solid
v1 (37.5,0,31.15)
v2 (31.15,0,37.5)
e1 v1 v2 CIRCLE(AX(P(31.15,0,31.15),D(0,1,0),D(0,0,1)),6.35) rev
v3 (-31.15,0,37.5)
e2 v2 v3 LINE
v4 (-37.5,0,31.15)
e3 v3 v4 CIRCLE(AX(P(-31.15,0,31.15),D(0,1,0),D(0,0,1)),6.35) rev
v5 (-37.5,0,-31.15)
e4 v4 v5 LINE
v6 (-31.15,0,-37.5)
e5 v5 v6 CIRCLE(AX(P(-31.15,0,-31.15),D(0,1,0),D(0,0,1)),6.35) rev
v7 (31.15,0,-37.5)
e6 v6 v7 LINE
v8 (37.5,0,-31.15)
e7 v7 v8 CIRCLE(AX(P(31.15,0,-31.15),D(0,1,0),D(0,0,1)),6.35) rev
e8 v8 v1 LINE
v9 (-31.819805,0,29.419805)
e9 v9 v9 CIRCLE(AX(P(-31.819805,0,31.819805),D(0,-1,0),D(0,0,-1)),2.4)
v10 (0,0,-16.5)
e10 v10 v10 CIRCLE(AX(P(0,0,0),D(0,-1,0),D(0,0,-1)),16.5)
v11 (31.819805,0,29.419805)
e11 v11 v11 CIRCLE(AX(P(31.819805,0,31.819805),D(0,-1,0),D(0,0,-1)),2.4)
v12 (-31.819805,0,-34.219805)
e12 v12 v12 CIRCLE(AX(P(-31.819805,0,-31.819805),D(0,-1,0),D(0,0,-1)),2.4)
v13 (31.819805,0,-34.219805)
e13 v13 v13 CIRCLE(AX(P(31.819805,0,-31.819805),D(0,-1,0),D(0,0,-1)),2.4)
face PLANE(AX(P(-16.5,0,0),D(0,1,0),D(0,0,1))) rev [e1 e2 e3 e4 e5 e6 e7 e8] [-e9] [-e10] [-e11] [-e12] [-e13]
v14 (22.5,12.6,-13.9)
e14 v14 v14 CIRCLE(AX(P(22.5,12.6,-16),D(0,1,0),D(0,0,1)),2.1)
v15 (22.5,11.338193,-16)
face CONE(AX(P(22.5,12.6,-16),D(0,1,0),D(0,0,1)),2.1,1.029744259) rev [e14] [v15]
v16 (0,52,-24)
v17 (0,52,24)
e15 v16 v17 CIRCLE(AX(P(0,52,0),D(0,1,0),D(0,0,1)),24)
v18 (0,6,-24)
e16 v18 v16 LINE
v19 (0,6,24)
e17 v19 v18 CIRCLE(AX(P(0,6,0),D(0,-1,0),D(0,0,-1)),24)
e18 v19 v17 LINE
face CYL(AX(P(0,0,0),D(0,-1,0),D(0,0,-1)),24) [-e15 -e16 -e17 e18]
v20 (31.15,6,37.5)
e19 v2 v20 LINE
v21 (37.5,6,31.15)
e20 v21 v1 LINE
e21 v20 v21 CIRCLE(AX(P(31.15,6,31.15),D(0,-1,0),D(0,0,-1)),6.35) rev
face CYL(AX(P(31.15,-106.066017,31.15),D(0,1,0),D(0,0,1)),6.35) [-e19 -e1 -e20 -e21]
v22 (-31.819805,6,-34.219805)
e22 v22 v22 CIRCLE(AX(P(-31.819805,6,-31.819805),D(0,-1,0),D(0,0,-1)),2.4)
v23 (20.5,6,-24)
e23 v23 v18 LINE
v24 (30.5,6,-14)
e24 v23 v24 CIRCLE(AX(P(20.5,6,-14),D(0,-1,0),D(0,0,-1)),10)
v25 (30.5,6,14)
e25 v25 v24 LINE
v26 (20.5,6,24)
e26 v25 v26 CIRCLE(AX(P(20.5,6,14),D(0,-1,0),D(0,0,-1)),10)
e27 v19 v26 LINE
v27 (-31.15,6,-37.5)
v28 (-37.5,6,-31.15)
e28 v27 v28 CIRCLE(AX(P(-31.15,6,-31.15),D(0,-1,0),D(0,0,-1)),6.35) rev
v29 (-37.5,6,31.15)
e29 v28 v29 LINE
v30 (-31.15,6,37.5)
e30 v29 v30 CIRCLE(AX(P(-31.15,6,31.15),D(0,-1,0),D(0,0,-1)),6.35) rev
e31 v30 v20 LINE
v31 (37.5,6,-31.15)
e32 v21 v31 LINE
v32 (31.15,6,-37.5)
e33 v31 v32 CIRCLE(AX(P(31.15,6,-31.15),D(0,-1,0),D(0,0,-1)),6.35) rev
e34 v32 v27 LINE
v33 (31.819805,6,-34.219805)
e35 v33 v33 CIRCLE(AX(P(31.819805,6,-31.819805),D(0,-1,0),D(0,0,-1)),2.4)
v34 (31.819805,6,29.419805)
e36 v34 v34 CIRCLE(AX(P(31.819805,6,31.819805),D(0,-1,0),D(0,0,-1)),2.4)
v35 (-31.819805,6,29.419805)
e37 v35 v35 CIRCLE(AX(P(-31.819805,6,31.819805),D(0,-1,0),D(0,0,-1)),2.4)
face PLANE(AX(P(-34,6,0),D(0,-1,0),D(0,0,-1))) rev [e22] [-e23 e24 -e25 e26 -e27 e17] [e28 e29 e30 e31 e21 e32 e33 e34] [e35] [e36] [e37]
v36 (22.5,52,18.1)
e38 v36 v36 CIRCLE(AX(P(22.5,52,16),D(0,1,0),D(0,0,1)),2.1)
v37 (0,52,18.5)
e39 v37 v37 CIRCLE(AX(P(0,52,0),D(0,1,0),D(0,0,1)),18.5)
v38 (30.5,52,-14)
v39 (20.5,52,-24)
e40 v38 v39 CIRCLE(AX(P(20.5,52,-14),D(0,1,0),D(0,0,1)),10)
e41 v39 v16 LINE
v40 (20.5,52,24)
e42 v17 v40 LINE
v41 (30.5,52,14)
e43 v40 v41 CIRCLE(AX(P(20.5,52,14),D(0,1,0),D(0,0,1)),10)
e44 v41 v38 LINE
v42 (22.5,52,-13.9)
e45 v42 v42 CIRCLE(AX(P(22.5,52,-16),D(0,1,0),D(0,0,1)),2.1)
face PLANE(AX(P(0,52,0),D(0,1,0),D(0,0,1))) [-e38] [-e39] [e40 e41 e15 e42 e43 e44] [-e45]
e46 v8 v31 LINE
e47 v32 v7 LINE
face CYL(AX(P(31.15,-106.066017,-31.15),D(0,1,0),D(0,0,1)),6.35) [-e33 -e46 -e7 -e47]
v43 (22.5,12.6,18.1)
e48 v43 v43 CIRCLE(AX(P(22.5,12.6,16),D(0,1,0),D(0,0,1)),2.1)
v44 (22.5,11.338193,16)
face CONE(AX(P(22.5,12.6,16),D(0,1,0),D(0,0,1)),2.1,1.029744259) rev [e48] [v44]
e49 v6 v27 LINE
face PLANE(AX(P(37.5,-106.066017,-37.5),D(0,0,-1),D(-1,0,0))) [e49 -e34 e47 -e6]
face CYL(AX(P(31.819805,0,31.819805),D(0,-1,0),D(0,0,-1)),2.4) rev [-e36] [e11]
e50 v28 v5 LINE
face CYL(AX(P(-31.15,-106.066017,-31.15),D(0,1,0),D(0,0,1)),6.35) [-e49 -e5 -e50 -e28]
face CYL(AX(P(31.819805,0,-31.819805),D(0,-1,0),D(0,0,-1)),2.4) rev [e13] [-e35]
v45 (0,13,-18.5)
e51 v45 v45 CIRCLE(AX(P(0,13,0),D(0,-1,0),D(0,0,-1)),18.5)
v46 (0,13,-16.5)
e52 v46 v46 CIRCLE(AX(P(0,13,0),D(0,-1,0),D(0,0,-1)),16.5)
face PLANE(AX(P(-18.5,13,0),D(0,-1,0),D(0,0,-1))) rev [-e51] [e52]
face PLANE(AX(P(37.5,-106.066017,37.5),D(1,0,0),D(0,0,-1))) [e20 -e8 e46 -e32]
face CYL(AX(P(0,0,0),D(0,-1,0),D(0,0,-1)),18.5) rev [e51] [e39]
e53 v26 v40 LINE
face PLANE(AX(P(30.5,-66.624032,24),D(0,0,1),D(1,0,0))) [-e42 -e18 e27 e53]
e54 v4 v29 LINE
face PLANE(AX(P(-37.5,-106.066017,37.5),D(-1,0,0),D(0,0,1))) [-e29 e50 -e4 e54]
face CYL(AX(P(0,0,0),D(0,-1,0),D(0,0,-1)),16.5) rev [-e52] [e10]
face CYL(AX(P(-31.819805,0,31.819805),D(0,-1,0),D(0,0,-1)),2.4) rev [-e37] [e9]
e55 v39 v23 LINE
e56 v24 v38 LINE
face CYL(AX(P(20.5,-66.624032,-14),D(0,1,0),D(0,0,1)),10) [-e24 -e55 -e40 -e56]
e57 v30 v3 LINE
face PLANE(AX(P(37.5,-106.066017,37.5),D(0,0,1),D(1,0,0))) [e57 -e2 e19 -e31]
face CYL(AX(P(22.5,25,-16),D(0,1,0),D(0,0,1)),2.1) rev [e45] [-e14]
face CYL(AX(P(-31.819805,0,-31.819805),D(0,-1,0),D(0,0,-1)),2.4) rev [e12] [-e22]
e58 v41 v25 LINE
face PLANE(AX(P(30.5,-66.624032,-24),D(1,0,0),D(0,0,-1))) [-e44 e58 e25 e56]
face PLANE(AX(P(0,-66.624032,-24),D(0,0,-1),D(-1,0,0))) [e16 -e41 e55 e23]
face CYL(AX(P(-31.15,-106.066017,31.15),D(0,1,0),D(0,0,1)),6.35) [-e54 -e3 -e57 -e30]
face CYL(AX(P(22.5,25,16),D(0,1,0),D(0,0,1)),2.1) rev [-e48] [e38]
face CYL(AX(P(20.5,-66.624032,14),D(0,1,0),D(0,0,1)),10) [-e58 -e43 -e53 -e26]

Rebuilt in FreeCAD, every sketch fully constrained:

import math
import FreeCAD as App
import Part
import Sketcher

V = App.Vector


def edges_at(feature, points):
    """Names of the edges that pass closest to the given points."""
    edges = feature.Shape.Edges
    near = lambda p: min(range(len(edges)), key=lambda i: edges[i].distToShape(Part.Vertex(*p))[0])
    return sorted({f"Edge{near(p) + 1}" for p in points})


def add_polygon(sketch, points):
    """Adds a closed chain of lines whose ends are joined by coincident constraints."""
    first, n = sketch.GeometryCount, len(points)
    for a, b in zip(points, points[1:] + points[:1]):
        sketch.addGeometry(Part.LineSegment(App.Vector(*a, 0), App.Vector(*b, 0)), False)
    for i in range(n):
        sketch.addConstraint(Sketcher.Constraint("Coincident", first + i, 2, first + (i + 1) % n, 1))

doc = App.newDocument("Part")
params = doc.addObject("Spreadsheet::Sheet", "Params")
for row, (alias, value) in enumerate([
    ("sketch1_width", "2 mm"),
    ("sketch1_width2", "10 mm"),
    ("sketch1_height", "13 mm"),
    ("sketch1_height2", "12 mm"),
    ("sketch1_height3", "19 mm"),
    ("revolution_angle", "360 deg"),
    ("sketch2_diameter", "42 mm"),
    ("sketch2_width", "75 mm"),
    ("pad1_length", "6 mm"),
    ("sketch3_diameter", "4.8 mm"),
    ("hole_diameter", "4.8 mm"),
    ("hole_depth", "25 mm"),
    ("fillet_radius", "6.35 mm"),
    ("sketch4_radius", "24 mm"),
    ("sketch4_width", "30.5 mm"),
    ("pad2_length", "19 mm"),
    ("fillet2_radius", "10 mm"),
    ("sketch5_diameter", "4.2 mm"),
    ("hole2_diameter", "4.2 mm"),
    ("hole2_depth", "12.4 mm"),
    ("sketch6_diameter", "37 mm"),
    ("sketch6_radius", "10 mm"),
    ("sketch6_radius2", "24 mm"),
    ("sketch6_diameter2", "4.2 mm"),
    ("sketch6_width", "20.5 mm"),
    ("pad3_length", "27 mm"),
], start=1):
    params.set(f"A{row}", alias)
    params.set(f"B{row}", "=" + value)
    params.setAlias(f"B{row}", alias)

body = doc.addObject("PartDesign::Body", "Body")

# Sketch on XY plane
sketch1 = body.newObject("Sketcher::SketchObject", "Sketch")
sketch1.AttachmentSupport = (doc.getObject("XY_Plane"), [""])
sketch1.MapMode = "FlatFace"
add_polygon(sketch1, [(-34, 0), (-16.5, 0), (-16.5, 13), (-18.5, 13), (-18.5, 25), (-24, 25), (-24, 6), (-34, 6)])  # lines 0-7
sketch1.addConstraint([
    Sketcher.Constraint("Horizontal", 0),
    Sketcher.Constraint("Vertical", 1),
    Sketcher.Constraint("Horizontal", 2),
    Sketcher.Constraint("Vertical", 3),
    Sketcher.Constraint("Horizontal", 4),
    Sketcher.Constraint("Vertical", 5),
    Sketcher.Constraint("Horizontal", 6),
    Sketcher.Constraint("Vertical", 7),
    Sketcher.Constraint("PointOnObject", 0, 2, -1),
    Sketcher.Constraint("DistanceX", 2, 2, 2, 1, 2.0),
    Sketcher.Constraint("DistanceX", 6, 2, 6, 1, 10.0),
    Sketcher.Constraint("DistanceY", 1, 1, 1, 2, 13.0),
    Sketcher.Constraint("DistanceY", 3, 1, 3, 2, 12.0),
    Sketcher.Constraint("DistanceY", 5, 2, 5, 1, 19.0),
    Sketcher.Constraint("DistanceX", 0, 1, 0, 2, 17.5),
    Sketcher.Constraint("DistanceX", 4, 2, -1, 1, 24.0),
])
sketch1.setExpression("Constraints[17]", "Params.sketch1_width")
sketch1.setExpression("Constraints[18]", "Params.sketch1_width2")
sketch1.setExpression("Constraints[19]", "Params.sketch1_height")
sketch1.setExpression("Constraints[20]", "Params.sketch1_height2")
sketch1.setExpression("Constraints[21]", "Params.sketch1_height3")
revolution = body.newObject("PartDesign::Revolution", "Revolution")
revolution.Profile = sketch1
revolution.ReferenceAxis = (sketch1, ["V_Axis"])
revolution.setExpression("Angle", "Params.revolution_angle")

# Sketch on XZ plane
sketch2 = body.newObject("Sketcher::SketchObject", "Sketch001")
sketch2.AttachmentSupport = (doc.getObject("XZ_Plane"), [""])
sketch2.MapMode = "FlatFace"
sketch2.AttachmentOffset = App.Placement(V(0, 0, -6), App.Rotation())
add_polygon(sketch2, [(-38, -38), (-38, 38), (38, 38), (38, -38)])  # lines 0-3
sketch2.addGeometry(Part.Circle(V(0, 0, 0), V(0, 0, 1), 21), False)  # 4
sketch2.addConstraint([
    Sketcher.Constraint("Vertical", 0),
    Sketcher.Constraint("Horizontal", 1),
    Sketcher.Constraint("Vertical", 2),
    Sketcher.Constraint("Horizontal", 3),
    Sketcher.Constraint("Coincident", 4, 3, -1, 1),
    Sketcher.Constraint("Symmetric", 0, 2, 2, 2, -1, 1),
    Sketcher.Constraint("Equal", 3, 0),
    Sketcher.Constraint("Diameter", 4, 42.0),
    Sketcher.Constraint("DistanceX", 1, 1, 1, 2, 75.0),
])
sketch2.setExpression("Constraints[11]", "Params.sketch2_diameter")
sketch2.setExpression("Constraints[12]", "Params.sketch2_width")
pad1 = body.newObject("PartDesign::Pad", "Pad")
pad1.Profile = sketch2
pad1.setExpression("Length", "Params.pad1_length")

# Sketch on XZ plane
sketch3 = body.newObject("Sketcher::SketchObject", "Sketch002")
sketch3.AttachmentSupport = (doc.getObject("XZ_Plane"), [""])
sketch3.MapMode = "FlatFace"
sketch3.addGeometry([
    Part.Circle(V(0, 0, 0), V(0, 0, 1), 2.4),  # 0
    Part.Circle(V(31.8, -31.8, 0), V(0, 0, 1), 2.4),  # 1
    Part.Circle(V(-31.8, -31.8, 0), V(0, 0, 1), 2.4),  # 2
    Part.Circle(V(-31.8, 31.8, 0), V(0, 0, 1), 2.4),  # 3
    Part.Circle(V(31.8, 31.8, 0), V(0, 0, 1), 2.4),  # 4
], False)
sketch3.addConstraint([
    Sketcher.Constraint("Coincident", 0, 3, -1, 1),
    Sketcher.Constraint("Equal", 0, 1),
    Sketcher.Constraint("Equal", 1, 2),
    Sketcher.Constraint("Equal", 2, 3),
    Sketcher.Constraint("Equal", 3, 4),
    Sketcher.Constraint("Symmetric", 1, 3, 3, 3, -1, 1),
    Sketcher.Constraint("Symmetric", 2, 3, 4, 3, -1, 1),
    Sketcher.Constraint("Symmetric", 1, 3, 2, 3, -2),
    Sketcher.Constraint("Diameter", 0, 4.8),
    Sketcher.Constraint("DistanceX", 2, 3, 1, 3, 63.63961),
    Sketcher.Constraint("DistanceY", 2, 3, 3, 3, 63.63961),
])
sketch3.setExpression("Constraints[8]", "Params.sketch3_diameter")
doc.recompute()
hole = body.newObject("PartDesign::Hole", "Hole")
hole.Profile = sketch3
hole.ThreadType = "None"
hole.setExpression("Diameter", "Params.hole_diameter")
hole.DepthType = "Dimension"
hole.setExpression("Depth", "Params.hole_depth")
hole.DrillPoint = "Flat"
doc.recompute()

fillet = body.newObject("PartDesign::Fillet", "Fillet")
fillet.Base = (hole, edges_at(hole, [
    (37.5, 3, 37.5),
    (37.5, 3, -37.5),
    (-37.5, 3, -37.5),
    (-37.5, 3, 37.5),
]))
fillet.setExpression("Radius", "Params.fillet_radius")

# Sketch on XZ plane
sketch4 = body.newObject("Sketcher::SketchObject", "Sketch003")
sketch4.AttachmentSupport = (doc.getObject("XZ_Plane"), [""])
sketch4.MapMode = "FlatFace"
sketch4.AttachmentOffset = App.Placement(V(0, 0, -25), App.Rotation())
sketch4.addGeometry([
    Part.LineSegment(V(30, -24, 0), V(0, -24, 0)),  # 0
    Part.ArcOfCircle(Part.Circle(V(0, 0, 0), V(0, 0, 1), 24), math.radians(90), math.radians(270)),  # 1
    Part.LineSegment(V(0, 24, 0), V(30, 24, 0)),  # 2
    Part.LineSegment(V(30, 24, 0), V(30, -24, 0)),  # 3
    Part.Circle(V(0, 0, 0), V(0, 0, 1), 23),  # 4
], False)
sketch4.addConstraint([
    Sketcher.Constraint("Tangent", 0, 2, 1, 2),
    Sketcher.Constraint("Tangent", 1, 1, 2, 1),
    Sketcher.Constraint("Coincident", 2, 2, 3, 1),
    Sketcher.Constraint("Coincident", 3, 2, 0, 1),
    Sketcher.Constraint("Horizontal", 0),
    Sketcher.Constraint("Horizontal", 2),
    Sketcher.Constraint("Vertical", 3),
    Sketcher.Constraint("Coincident", 1, 3, -1, 1),
    Sketcher.Constraint("Coincident", 4, 3, -1, 1),
    Sketcher.Constraint("Radius", 1, 24.0),
    Sketcher.Constraint("DistanceX", 0, 2, 0, 1, 30.5),
    Sketcher.Constraint("Diameter", 4, 45.618236),
])
sketch4.setExpression("Constraints[9]", "Params.sketch4_radius")
sketch4.setExpression("Constraints[10]", "Params.sketch4_width")
pad2 = body.newObject("PartDesign::Pad", "Pad001")
pad2.Profile = sketch4
pad2.setExpression("Length", "Params.pad2_length")
doc.recompute()

fillet2 = body.newObject("PartDesign::Fillet", "Fillet001")
fillet2.Base = (pad2, edges_at(pad2, [(30.5, 15.5, -24), (30.5, 15.5, 24)]))
fillet2.setExpression("Radius", "Params.fillet2_radius")

# Sketch on XZ plane
sketch5 = body.newObject("Sketcher::SketchObject", "Sketch004")
sketch5.AttachmentSupport = (doc.getObject("XZ_Plane"), [""])
sketch5.MapMode = "FlatFace"
sketch5.AttachmentOffset = App.Placement(V(0, 0, -25), App.Rotation())
sketch5.addGeometry([
    Part.Circle(V(22.5, -16, 0), V(0, 0, 1), 2.1),
    Part.Circle(V(22.5, 16, 0), V(0, 0, 1), 2.1),
], False)
sketch5.addConstraint([
    Sketcher.Constraint("Equal", 0, 1),
    Sketcher.Constraint("Symmetric", 0, 3, 1, 3, -1),
    Sketcher.Constraint("Diameter", 0, 4.2),
    Sketcher.Constraint("DistanceY", 0, 3, -1, 1, 16.0),
    Sketcher.Constraint("DistanceX", -1, 1, 0, 3, 22.5),
])
sketch5.setExpression("Constraints[2]", "Params.sketch5_diameter")
doc.recompute()
hole2 = body.newObject("PartDesign::Hole", "Hole001")
hole2.Profile = sketch5
hole2.ThreadType = "None"
hole2.setExpression("Diameter", "Params.hole2_diameter")
hole2.DepthType = "Dimension"
hole2.setExpression("Depth", "Params.hole2_depth")
hole2.DrillPoint = "Angled"
hole2.DrillPointAngle = 118
hole2.Reversed = True

# Sketch on XZ plane
sketch6 = body.newObject("Sketcher::SketchObject", "Sketch005")
sketch6.AttachmentSupport = (doc.getObject("XZ_Plane"), [""])
sketch6.MapMode = "FlatFace"
sketch6.AttachmentOffset = App.Placement(V(0, 0, -25), App.Rotation())
sketch6.addGeometry([
    Part.LineSegment(V(0, 24, 0), V(20.5, 24, 0)),  # 0
    Part.ArcOfCircle(Part.Circle(V(20.5, 14, 0), V(0, 0, 1), 10), math.radians(0), math.radians(90)),  # 1
    Part.LineSegment(V(30.5, 14, 0), V(30.5, -14, 0)),  # 2
    Part.ArcOfCircle(Part.Circle(V(20.5, -14, 0), V(0, 0, 1), 10), math.radians(-90), math.radians(0)),  # 3
    Part.LineSegment(V(20.5, -24, 0), V(0, -24, 0)),  # 4
    Part.ArcOfCircle(Part.Circle(V(0, 0, 0), V(0, 0, 1), 24), math.radians(90), math.radians(270)),  # 5
    Part.Circle(V(22.5, 16, 0), V(0, 0, 1), 2.1),  # 6
    Part.Circle(V(0, 0, 0), V(0, 0, 1), 18.5),  # 7
    Part.Circle(V(22.5, -16, 0), V(0, 0, 1), 2.1),  # 8
], False)
sketch6.addConstraint([
    Sketcher.Constraint("Tangent", 0, 2, 1, 2),
    Sketcher.Constraint("Tangent", 1, 1, 2, 1),
    Sketcher.Constraint("Tangent", 2, 2, 3, 2),
    Sketcher.Constraint("Tangent", 3, 1, 4, 1),
    Sketcher.Constraint("Tangent", 4, 2, 5, 2),
    Sketcher.Constraint("Tangent", 5, 1, 0, 1),
    Sketcher.Constraint("Horizontal", 0),
    Sketcher.Constraint("Vertical", 2),
    Sketcher.Constraint("Horizontal", 4),
    Sketcher.Constraint("Coincident", 5, 3, -1, 1),
    Sketcher.Constraint("Coincident", 7, 3, -1, 1),
    Sketcher.Constraint("Equal", 1, 3),
    Sketcher.Constraint("Equal", 6, 8),
    Sketcher.Constraint("Symmetric", 6, 3, 8, 3, -1),
    Sketcher.Constraint("Diameter", 7, 37.0),
    Sketcher.Constraint("Radius", 1, 10.0),
    Sketcher.Constraint("Radius", 5, 24.0),
    Sketcher.Constraint("Diameter", 6, 4.2),
    Sketcher.Constraint("DistanceX", 0, 1, 0, 2, 20.5),
    Sketcher.Constraint("DistanceY", -1, 1, 6, 3, 16.0),
    Sketcher.Constraint("DistanceX", 1, 3, 6, 3, 2.0),
])
sketch6.setExpression("Constraints[14]", "Params.sketch6_diameter")
sketch6.setExpression("Constraints[15]", "Params.sketch6_radius")
sketch6.setExpression("Constraints[16]", "Params.sketch6_radius2")
sketch6.setExpression("Constraints[17]", "Params.sketch6_diameter2")
sketch6.setExpression("Constraints[18]", "Params.sketch6_width")
pad3 = body.newObject("PartDesign::Pad", "Pad002")
pad3.Profile = sketch6
pad3.setExpression("Length", "Params.pad3_length")
pad3.Reversed = True

doc.recompute()
